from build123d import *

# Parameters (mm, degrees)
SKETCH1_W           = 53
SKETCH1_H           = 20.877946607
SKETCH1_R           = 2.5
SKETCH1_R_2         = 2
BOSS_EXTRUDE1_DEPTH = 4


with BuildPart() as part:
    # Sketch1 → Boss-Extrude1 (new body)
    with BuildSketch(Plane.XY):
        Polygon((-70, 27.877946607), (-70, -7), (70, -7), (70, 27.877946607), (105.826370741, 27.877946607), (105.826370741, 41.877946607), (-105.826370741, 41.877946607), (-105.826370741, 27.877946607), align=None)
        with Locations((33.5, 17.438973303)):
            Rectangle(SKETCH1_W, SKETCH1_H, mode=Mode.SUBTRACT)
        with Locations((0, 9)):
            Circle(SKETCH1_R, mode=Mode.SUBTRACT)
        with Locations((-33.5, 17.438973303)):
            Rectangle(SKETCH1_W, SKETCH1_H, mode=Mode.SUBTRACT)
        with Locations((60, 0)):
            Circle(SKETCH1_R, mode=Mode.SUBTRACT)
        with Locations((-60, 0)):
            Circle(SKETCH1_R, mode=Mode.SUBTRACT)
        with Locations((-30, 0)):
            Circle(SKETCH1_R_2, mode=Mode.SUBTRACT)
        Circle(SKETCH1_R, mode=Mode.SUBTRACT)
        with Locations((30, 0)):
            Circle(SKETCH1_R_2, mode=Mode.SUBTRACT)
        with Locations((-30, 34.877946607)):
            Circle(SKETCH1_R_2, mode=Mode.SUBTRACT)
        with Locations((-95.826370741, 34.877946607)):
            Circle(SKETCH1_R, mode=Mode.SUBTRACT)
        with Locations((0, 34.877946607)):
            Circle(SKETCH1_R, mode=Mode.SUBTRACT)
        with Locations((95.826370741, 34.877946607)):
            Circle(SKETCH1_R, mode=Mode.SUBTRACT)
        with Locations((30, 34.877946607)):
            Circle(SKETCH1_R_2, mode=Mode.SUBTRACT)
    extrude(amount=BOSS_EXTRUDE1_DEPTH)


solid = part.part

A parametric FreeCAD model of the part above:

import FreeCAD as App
import Part
import Sketcher

V = App.Vector


def add_polygon(sketch, points):
    """Adds a closed chain of lines whose ends are joined by coincident constraints."""
    first, n = sketch.GeometryCount, len(points)
    for a, b in zip(points, points[1:] + points[:1]):
        sketch.addGeometry(Part.LineSegment(App.Vector(*a, 0), App.Vector(*b, 0)), False)
    for i in range(n):
        sketch.addConstraint(Sketcher.Constraint("Coincident", first + i, 2, first + (i + 1) % n, 1))

doc = App.newDocument("Part")
body = doc.addObject("PartDesign::Body", "Body")

sketch1 = body.newObject("Sketcher::SketchObject", "Sketch")
sketch1.AttachmentSupport = (doc.getObject("XY_Plane"), [""])
sketch1.MapMode = "FlatFace"
add_polygon(sketch1, [(-70, 27.9), (-70, -7), (70, -7), (70, 27.9), (105.8, 27.9), (105.8, 41.9), (-105.8, 41.9), (-105.8, 27.9)])
sketch1.addGeometry(Part.Circle(V(-60, 0, 0), V(0, 0, 1), 2.5), False)
sketch1.addGeometry(Part.Circle(V(-30, 0, 0), V(0, 0, 1), 2), False)
add_polygon(sketch1, [(-7, 7), (-60, 7), (-60, 27.9), (-7, 27.9)])
sketch1.addGeometry(Part.Circle(V(0, 0, 0), V(0, 0, 1), 2.5), False)
sketch1.addGeometry(Part.Circle(V(30, 0, 0), V(0, 0, 1), 2), False)
sketch1.addGeometry(Part.Circle(V(60, 0, 0), V(0, 0, 1), 2.5), False)
sketch1.addGeometry(Part.Circle(V(0, 9, 0), V(0, 0, 1), 2.5), False)
add_polygon(sketch1, [(60, 7), (7, 7), (7, 27.9), (60, 27.9)])
sketch1.addGeometry(Part.Circle(V(-95.8, 34.9, 0), V(0, 0, 1), 2.5), False)
sketch1.addGeometry(Part.Circle(V(-30, 34.9, 0), V(0, 0, 1), 2), False)
sketch1.addGeometry(Part.Circle(V(0, 34.9, 0), V(0, 0, 1), 2.5), False)
sketch1.addGeometry(Part.Circle(V(30, 34.9, 0), V(0, 0, 1), 2), False)
sketch1.addGeometry(Part.Circle(V(95.8, 34.9, 0), V(0, 0, 1), 2.5), False)
sketch1.addConstraint([
    Sketcher.Constraint("Vertical", 0),
    Sketcher.Constraint("Horizontal", 1),
    Sketcher.Constraint("Vertical", 2),
    Sketcher.Constraint("Horizontal", 3),
    Sketcher.Constraint("Vertical", 4),
    Sketcher.Constraint("Horizontal", 5),
    Sketcher.Constraint("Vertical", 6),
    Sketcher.Constraint("Horizontal", 7),
    Sketcher.Constraint("Horizontal", 10),
    Sketcher.Constraint("Vertical", 11),
    Sketcher.Constraint("Horizontal", 12),
    Sketcher.Constraint("Vertical", 13),
    Sketcher.Constraint("Horizontal", 18),
    Sketcher.Constraint("Vertical", 19),
    Sketcher.Constraint("Horizontal", 20),
    Sketcher.Constraint("Vertical", 21),
    Sketcher.Constraint("Coincident", 14, 3, -1, 1),
    Sketcher.Constraint("Equal", 8, 14),
    Sketcher.Constraint("Equal", 9, 15),
    Sketcher.Constraint("Equal", 14, 16),
    Sketcher.Constraint("Equal", 16, 17),
    Sketcher.Constraint("Equal", 17, 22),
    Sketcher.Constraint("Equal", 15, 23),
    Sketcher.Constraint("Equal", 22, 24),
    Sketcher.Constraint("Equal", 23, 25),
    Sketcher.Constraint("Equal", 24, 26),
    Sketcher.Constraint("Symmetric", 9, 3, 15, 3, -1, 1),
    Sketcher.Constraint("Symmetric", 8, 3, 16, 3, -1, 1),
    Sketcher.Constraint("Symmetric", 23, 3, 25, 3, -2),
    Sketcher.Constraint("Symmetric", 22, 3, 26, 3, -2),
    Sketcher.Constraint("Symmetric", 3, 2, 6, 2, -2),
    Sketcher.Constraint("Symmetric", 13, 2, 18, 2, -2),
    Sketcher.Constraint("Symmetric", 11, 2, 20, 2, -2),
    Sketcher.Constraint("PointOnObject", 8, 3, -1),
    Sketcher.Constraint("PointOnObject", 9, 3, -1),
    Sketcher.Constraint("PointOnObject", 17, 3, -2),
    Sketcher.Constraint("PointOnObject", 24, 3, -2),
    Sketcher.Constraint("Horizontal", 22, 3, 23, 3),
    Sketcher.Constraint("Horizontal", 23, 3, 24, 3),
    Sketcher.Constraint("Horizontal", 7, 2, 11, 2),
    Sketcher.Constraint("Vertical", 9, 3, 23, 3),
    Sketcher.Constraint("Vertical", 8, 3, 10, 2),
    Sketcher.Constraint("Equal", 3, 7),
    Sketcher.Constraint("Diameter", 8, 5.0),
    Sketcher.Constraint("Diameter", 9, 4.0),
    Sketcher.Constraint("DistanceX", 1, 1, 1, 2, 140.0),
    Sketcher.Constraint("DistanceX", 10, 2, 10, 1, 53.0),
    Sketcher.Constraint("DistanceY", 4, 1, 4, 2, 14.0),
    Sketcher.Constraint("DistanceX", 8, 3, -1, 1, 60.0),
    Sketcher.Constraint("DistanceX", 9, 3, -1, 1, 30.0),
    Sketcher.Constraint("DistanceY", -1, 1, 17, 3, 9.0),
    Sketcher.Constraint("DistanceY", 0, 2, -1, 1, 7.0),
    Sketcher.Constraint("DistanceY", -1, 1, 10, 2, 7.0),
    Sketcher.Constraint("DistanceY", 2, 2, 26, 3, 7.0),
    Sketcher.Constraint("DistanceX", 26, 3, 3, 2, 10.0),
    Sketcher.Constraint("DistanceX", 3, 1, 3, 2, 35.826371),
    Sketcher.Constraint("DistanceY", 0, 2, 0, 1, 34.877947),
])
pad1 = body.newObject("PartDesign::Pad", "Pad")
pad1.Profile = sketch1
pad1.Length = 4

doc.recompute()
